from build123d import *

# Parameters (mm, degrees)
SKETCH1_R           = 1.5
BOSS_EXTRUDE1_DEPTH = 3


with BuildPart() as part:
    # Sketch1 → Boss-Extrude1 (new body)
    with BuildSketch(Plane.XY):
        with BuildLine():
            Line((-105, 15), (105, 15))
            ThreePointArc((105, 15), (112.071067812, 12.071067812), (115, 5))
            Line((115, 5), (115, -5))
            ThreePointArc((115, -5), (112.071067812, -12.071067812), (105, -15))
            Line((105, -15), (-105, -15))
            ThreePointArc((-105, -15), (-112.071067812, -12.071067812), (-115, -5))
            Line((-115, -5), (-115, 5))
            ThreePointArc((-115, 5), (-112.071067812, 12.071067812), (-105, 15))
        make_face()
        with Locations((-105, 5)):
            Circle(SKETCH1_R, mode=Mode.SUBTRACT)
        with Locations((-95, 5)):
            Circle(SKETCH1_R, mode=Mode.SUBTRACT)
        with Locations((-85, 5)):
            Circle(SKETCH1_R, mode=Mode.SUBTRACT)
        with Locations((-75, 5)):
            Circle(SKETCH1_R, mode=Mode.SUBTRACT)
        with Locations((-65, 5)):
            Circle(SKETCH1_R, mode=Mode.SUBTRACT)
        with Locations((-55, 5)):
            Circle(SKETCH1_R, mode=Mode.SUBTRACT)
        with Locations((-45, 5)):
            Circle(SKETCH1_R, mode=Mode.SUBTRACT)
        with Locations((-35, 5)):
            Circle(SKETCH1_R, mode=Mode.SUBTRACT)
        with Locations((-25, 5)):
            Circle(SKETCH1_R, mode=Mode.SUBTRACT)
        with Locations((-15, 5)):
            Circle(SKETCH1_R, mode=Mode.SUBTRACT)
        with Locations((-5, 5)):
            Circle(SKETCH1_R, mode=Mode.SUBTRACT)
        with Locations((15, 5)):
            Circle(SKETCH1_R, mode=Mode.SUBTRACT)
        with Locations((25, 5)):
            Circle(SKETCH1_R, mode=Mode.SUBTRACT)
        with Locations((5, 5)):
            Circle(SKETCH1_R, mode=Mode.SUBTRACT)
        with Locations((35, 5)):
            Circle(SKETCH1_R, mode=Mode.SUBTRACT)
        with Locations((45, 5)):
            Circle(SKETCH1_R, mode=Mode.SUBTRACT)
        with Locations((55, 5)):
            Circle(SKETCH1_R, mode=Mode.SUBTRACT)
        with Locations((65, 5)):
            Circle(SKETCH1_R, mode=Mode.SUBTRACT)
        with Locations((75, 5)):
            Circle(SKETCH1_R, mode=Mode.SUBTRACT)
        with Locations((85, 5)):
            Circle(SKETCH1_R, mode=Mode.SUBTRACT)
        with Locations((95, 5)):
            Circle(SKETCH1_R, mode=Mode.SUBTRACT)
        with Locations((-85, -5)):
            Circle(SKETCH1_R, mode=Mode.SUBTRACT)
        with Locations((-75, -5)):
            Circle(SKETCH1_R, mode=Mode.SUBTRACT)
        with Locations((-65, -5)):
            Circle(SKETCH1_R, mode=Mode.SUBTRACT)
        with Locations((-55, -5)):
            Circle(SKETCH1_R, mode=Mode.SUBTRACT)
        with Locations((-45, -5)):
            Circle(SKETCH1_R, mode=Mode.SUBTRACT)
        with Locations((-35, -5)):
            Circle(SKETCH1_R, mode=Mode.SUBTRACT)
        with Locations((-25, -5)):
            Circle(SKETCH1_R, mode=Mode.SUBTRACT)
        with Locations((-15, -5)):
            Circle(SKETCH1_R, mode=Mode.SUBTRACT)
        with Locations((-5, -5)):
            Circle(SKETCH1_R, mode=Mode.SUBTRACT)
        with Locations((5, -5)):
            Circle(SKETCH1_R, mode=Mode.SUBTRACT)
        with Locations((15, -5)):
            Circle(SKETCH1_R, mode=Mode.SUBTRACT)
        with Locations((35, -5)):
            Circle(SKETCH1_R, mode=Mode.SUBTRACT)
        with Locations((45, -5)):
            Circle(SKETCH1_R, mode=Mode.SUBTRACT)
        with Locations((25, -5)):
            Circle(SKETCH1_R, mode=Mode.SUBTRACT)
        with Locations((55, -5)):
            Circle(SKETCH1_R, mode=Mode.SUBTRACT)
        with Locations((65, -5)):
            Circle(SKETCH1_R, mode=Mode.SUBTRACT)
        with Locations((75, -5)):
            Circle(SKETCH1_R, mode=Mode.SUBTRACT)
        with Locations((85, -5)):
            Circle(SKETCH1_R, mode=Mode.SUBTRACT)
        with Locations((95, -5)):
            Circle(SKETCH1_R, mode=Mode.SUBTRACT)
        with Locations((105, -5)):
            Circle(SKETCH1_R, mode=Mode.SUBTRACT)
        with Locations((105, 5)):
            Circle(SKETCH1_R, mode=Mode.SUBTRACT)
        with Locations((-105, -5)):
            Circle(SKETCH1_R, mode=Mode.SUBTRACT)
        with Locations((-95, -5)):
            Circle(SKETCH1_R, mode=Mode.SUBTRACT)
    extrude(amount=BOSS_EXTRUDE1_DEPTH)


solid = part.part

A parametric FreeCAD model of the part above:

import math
import FreeCAD as App
import Part
import Sketcher
from FreeCAD import Vector
Q = App.Units.Quantity

doc = App.newDocument("Part")
body = doc.addObject("PartDesign::Body", "Body")

# Sketch on XY plane
sketch1 = doc.addObject("Sketcher::SketchObject", "Sketch")
body.addObject(sketch1)
sketch1.AttachmentSupport = (doc.XY_Plane, [""])
sketch1.MapMode = "FlatFace"
sketch1.addGeometry([
    Part.LineSegment(Vector(105, 15, 0), Vector(-105, 15, 0)),  # 0
    Part.ArcOfCircle(Part.Circle(Vector(-105, 5, 0), Vector(0, 0, 1), 10), math.radians(90), math.radians(180)),  # 1
    Part.LineSegment(Vector(-115, 5, 0), Vector(-115, -5, 0)),  # 2
    Part.ArcOfCircle(Part.Circle(Vector(-105, -5, 0), Vector(0, 0, 1), 10), math.radians(180), math.radians(270)),  # 3
    Part.LineSegment(Vector(-105, -15, 0), Vector(105, -15, 0)),  # 4
    Part.ArcOfCircle(Part.Circle(Vector(105, -5, 0), Vector(0, 0, 1), 10), math.radians(-90), math.radians(0)),  # 5
    Part.LineSegment(Vector(115, -5, 0), Vector(115, 5, 0)),  # 6
    Part.ArcOfCircle(Part.Circle(Vector(105, 5, 0), Vector(0, 0, 1), 10), math.radians(0), math.radians(90)),  # 7
    Part.Circle(Vector(105, -5, 0), Vector(0, 0, 1), 1.5),  # 8
    Part.Circle(Vector(95, -5, 0), Vector(0, 0, 1), 1.5),  # 9
    Part.Circle(Vector(85, -5, 0), Vector(0, 0, 1), 1.5),  # 10
    Part.Circle(Vector(75, -5, 0), Vector(0, 0, 1), 1.5),  # 11
    Part.Circle(Vector(65, -5, 0), Vector(0, 0, 1), 1.5),  # 12
    Part.Circle(Vector(55, -5, 0), Vector(0, 0, 1), 1.5),  # 13
    Part.Circle(Vector(45, -5, 0), Vector(0, 0, 1), 1.5),  # 14
    Part.Circle(Vector(35, -5, 0), Vector(0, 0, 1), 1.5),  # 15
    Part.Circle(Vector(25, -5, 0), Vector(0, 0, 1), 1.5),  # 16
    Part.Circle(Vector(15, -5, 0), Vector(0, 0, 1), 1.5),  # 17
    Part.Circle(Vector(5, -5, 0), Vector(0, 0, 1), 1.5),  # 18
    Part.Circle(Vector(-5, -5, 0), Vector(0, 0, 1), 1.5),  # 19
    Part.Circle(Vector(-15, -5, 0), Vector(0, 0, 1), 1.5),  # 20
    Part.Circle(Vector(-25, -5, 0), Vector(0, 0, 1), 1.5),  # 21
    Part.Circle(Vector(-35, -5, 0), Vector(0, 0, 1), 1.5),  # 22
    Part.Circle(Vector(-45, -5, 0), Vector(0, 0, 1), 1.5),  # 23
    Part.Circle(Vector(-55, -5, 0), Vector(0, 0, 1), 1.5),  # 24
    Part.Circle(Vector(-65, -5, 0), Vector(0, 0, 1), 1.5),  # 25
    Part.Circle(Vector(-75, -5, 0), Vector(0, 0, 1), 1.5),  # 26
    Part.Circle(Vector(-85, -5, 0), Vector(0, 0, 1), 1.5),  # 27
    Part.Circle(Vector(-95, -5, 0), Vector(0, 0, 1), 1.5),  # 28
    Part.Circle(Vector(-105, -5, 0), Vector(0, 0, 1), 1.5),  # 29
    Part.Circle(Vector(105, 5, 0), Vector(0, 0, 1), 1.5),  # 30
    Part.Circle(Vector(95, 5, 0), Vector(0, 0, 1), 1.5),  # 31
    Part.Circle(Vector(85, 5, 0), Vector(0, 0, 1), 1.5),  # 32
    Part.Circle(Vector(75, 5, 0), Vector(0, 0, 1), 1.5),  # 33
    Part.Circle(Vector(65, 5, 0), Vector(0, 0, 1), 1.5),  # 34
    Part.Circle(Vector(55, 5, 0), Vector(0, 0, 1), 1.5),  # 35
    Part.Circle(Vector(45, 5, 0), Vector(0, 0, 1), 1.5),  # 36
    Part.Circle(Vector(35, 5, 0), Vector(0, 0, 1), 1.5),  # 37
    Part.Circle(Vector(25, 5, 0), Vector(0, 0, 1), 1.5),  # 38
    Part.Circle(Vector(15, 5, 0), Vector(0, 0, 1), 1.5),  # 39
    Part.Circle(Vector(5, 5, 0), Vector(0, 0, 1), 1.5),  # 40
    Part.Circle(Vector(-5, 5, 0), Vector(0, 0, 1), 1.5),  # 41
    Part.Circle(Vector(-15, 5, 0), Vector(0, 0, 1), 1.5),  # 42
    Part.Circle(Vector(-25, 5, 0), Vector(0, 0, 1), 1.5),  # 43
    Part.Circle(Vector(-35, 5, 0), Vector(0, 0, 1), 1.5),  # 44
    Part.Circle(Vector(-45, 5, 0), Vector(0, 0, 1), 1.5),  # 45
    Part.Circle(Vector(-55, 5, 0), Vector(0, 0, 1), 1.5),  # 46
    Part.Circle(Vector(-65, 5, 0), Vector(0, 0, 1), 1.5),  # 47
    Part.Circle(Vector(-75, 5, 0), Vector(0, 0, 1), 1.5),  # 48
    Part.Circle(Vector(-85, 5, 0), Vector(0, 0, 1), 1.5),  # 49
    Part.Circle(Vector(-95, 5, 0), Vector(0, 0, 1), 1.5),  # 50
    Part.Circle(Vector(-105, 5, 0), Vector(0, 0, 1), 1.5),  # 51
], False)
sketch1.addConstraint([
    Sketcher.Constraint("Tangent", 0, 2, 1, 1),
    Sketcher.Constraint("Tangent", 1, 2, 2, 1),
    Sketcher.Constraint("Tangent", 2, 2, 3, 1),
    Sketcher.Constraint("Tangent", 3, 2, 4, 1),
    Sketcher.Constraint("Tangent", 4, 2, 5, 1),
    Sketcher.Constraint("Tangent", 5, 2, 6, 1),
    Sketcher.Constraint("Tangent", 6, 2, 7, 1),
    Sketcher.Constraint("Tangent", 7, 2, 0, 1),
    Sketcher.Constraint("Horizontal", 0),
    Sketcher.Constraint("Vertical", 2),
    Sketcher.Constraint("Horizontal", 4),
    Sketcher.Constraint("Vertical", 6),
    Sketcher.Constraint("Coincident", 8, 3, 5, 3),
    Sketcher.Constraint("Coincident", 29, 3, 3, 3),
    Sketcher.Constraint("Coincident", 30, 3, 7, 3),
    Sketcher.Constraint("Coincident", 51, 3, 1, 3),
    Sketcher.Constraint("Equal", 1, 3),
    Sketcher.Constraint("Equal", 3, 5),
    Sketcher.Constraint("Equal", 5, 7),
    Sketcher.Constraint("Equal", 8, 9),
    Sketcher.Constraint("Equal", 9, 10),
    Sketcher.Constraint("Equal", 10, 11),
    Sketcher.Constraint("Equal", 11, 12),
    Sketcher.Constraint("Equal", 12, 13),
    Sketcher.Constraint("Equal", 13, 14),
    Sketcher.Constraint("Equal", 14, 15),
    Sketcher.Constraint("Equal", 15, 16),
    Sketcher.Constraint("Equal", 16, 17),
    Sketcher.Constraint("Equal", 17, 18),
    Sketcher.Constraint("Equal", 18, 19),
    Sketcher.Constraint("Equal", 19, 20),
    Sketcher.Constraint("Equal", 20, 21),
    Sketcher.Constraint("Equal", 21, 22),
    Sketcher.Constraint("Equal", 22, 23),
    Sketcher.Constraint("Equal", 23, 24),
    Sketcher.Constraint("Equal", 24, 25),
    Sketcher.Constraint("Equal", 25, 26),
    Sketcher.Constraint("Equal", 26, 27),
    Sketcher.Constraint("Equal", 27, 28),
    Sketcher.Constraint("Equal", 28, 29),
    Sketcher.Constraint("Equal", 29, 30),
    Sketcher.Constraint("Equal", 30, 31),
    Sketcher.Constraint("Equal", 31, 32),
    Sketcher.Constraint("Equal", 32, 33),
    Sketcher.Constraint("Equal", 33, 34),
    Sketcher.Constraint("Equal", 34, 35),
    Sketcher.Constraint("Equal", 35, 36),
    Sketcher.Constraint("Equal", 36, 37),
    Sketcher.Constraint("Equal", 37, 38),
    Sketcher.Constraint("Equal", 38, 39),
    Sketcher.Constraint("Equal", 39, 40),
    Sketcher.Constraint("Equal", 40, 41),
    Sketcher.Constraint("Equal", 41, 42),
    Sketcher.Constraint("Equal", 42, 43),
    Sketcher.Constraint("Equal", 43, 44),
    Sketcher.Constraint("Equal", 44, 45),
    Sketcher.Constraint("Equal", 45, 46),
    Sketcher.Constraint("Equal", 46, 47),
    Sketcher.Constraint("Equal", 47, 48),
    Sketcher.Constraint("Equal", 48, 49),
    Sketcher.Constraint("Equal", 49, 50),
    Sketcher.Constraint("Equal", 50, 51),
    Sketcher.Constraint("Symmetric", 1, 3, 5, 3, -1, 1),
    Sketcher.Constraint("Symmetric", 28, 3, 31, 3, -1, 1),
    Sketcher.Constraint("Symmetric", 27, 3, 32, 3, -1, 1),
    Sketcher.Constraint("Symmetric", 26, 3, 33, 3, -1, 1),
    Sketcher.Constraint("Symmetric", 25, 3, 34, 3, -1, 1),
    Sketcher.Constraint("Symmetric", 24, 3, 35, 3, -1, 1),
    Sketcher.Constraint("Symmetric", 23, 3, 36, 3, -1, 1),
    Sketcher.Constraint("Symmetric", 22, 3, 37, 3, -1, 1),
    Sketcher.Constraint("Symmetric", 21, 3, 38, 3, -1, 1),
    Sketcher.Constraint("Symmetric", 20, 3, 39, 3, -1, 1),
    Sketcher.Constraint("Symmetric", 19, 3, 40, 3, -1, 1),
    Sketcher.Constraint("Symmetric", 18, 3, 41, 3, -1, 1),
    Sketcher.Constraint("Symmetric", 17, 3, 42, 3, -1, 1),
    Sketcher.Constraint("Symmetric", 16, 3, 43, 3, -1, 1),
    Sketcher.Constraint("Symmetric", 15, 3, 44, 3, -1, 1),
    Sketcher.Constraint("Symmetric", 14, 3, 45, 3, -1, 1),
    Sketcher.Constraint("Symmetric", 13, 3, 46, 3, -1, 1),
    Sketcher.Constraint("Symmetric", 12, 3, 47, 3, -1, 1),
    Sketcher.Constraint("Symmetric", 11, 3, 48, 3, -1, 1),
    Sketcher.Constraint("Symmetric", 10, 3, 49, 3, -1, 1),
    Sketcher.Constraint("Symmetric", 9, 3, 50, 3, -1, 1),
    Sketcher.Constraint("Symmetric", 18, 3, 19, 3, -2),
    Sketcher.Constraint("Symmetric", 17, 3, 20, 3, -2),
    Sketcher.Constraint("Symmetric", 16, 3, 21, 3, -2),
    Sketcher.Constraint("Symmetric", 15, 3, 22, 3, -2),
    Sketcher.Constraint("Symmetric", 14, 3, 23, 3, -2),
    Sketcher.Constraint("Symmetric", 13, 3, 24, 3, -2),
    Sketcher.Constraint("Symmetric", 12, 3, 25, 3, -2),
    Sketcher.Constraint("Symmetric", 11, 3, 26, 3, -2),
    Sketcher.Constraint("Symmetric", 10, 3, 27, 3, -2),
    Sketcher.Constraint("Symmetric", 9, 3, 28, 3, -2),
    Sketcher.Constraint("Horizontal", 8, 3, 9, 3),
    Sketcher.Constraint("Horizontal", 9, 3, 10, 3),
    Sketcher.Constraint("Horizontal", 10, 3, 11, 3),
    Sketcher.Constraint("Horizontal", 11, 3, 12, 3),
    Sketcher.Constraint("Horizontal", 12, 3, 13, 3),
    Sketcher.Constraint("Horizontal", 13, 3, 14, 3),
    Sketcher.Constraint("Horizontal", 14, 3, 15, 3),
    Sketcher.Constraint("Horizontal", 15, 3, 16, 3),
    Sketcher.Constraint("Horizontal", 16, 3, 17, 3),
    Sketcher.Constraint("Horizontal", 17, 3, 18, 3),
    Sketcher.Constraint("Diameter", 8, Q("3 mm")),
    Sketcher.Constraint("Radius", 1, Q("10 mm")),
    Sketcher.Constraint("DistanceX", 0, 2, 0, 1, Q("210 mm")),
    Sketcher.Constraint("DistanceY", 2, 2, 2, 1, Q("10 mm")),
    Sketcher.Constraint("DistanceX", -1, 1, 9, 3, Q("95 mm")),
    Sketcher.Constraint("DistanceX", -1, 1, 10, 3, Q("85 mm")),
    Sketcher.Constraint("DistanceX", -1, 1, 11, 3, Q("75 mm")),
    Sketcher.Constraint("DistanceX", -1, 1, 12, 3, Q("65 mm")),
    Sketcher.Constraint("DistanceX", -1, 1, 13, 3, Q("55 mm")),
    Sketcher.Constraint("DistanceX", -1, 1, 14, 3, Q("45 mm")),
    Sketcher.Constraint("DistanceX", -1, 1, 15, 3, Q("35 mm")),
    Sketcher.Constraint("DistanceX", -1, 1, 16, 3, Q("25 mm")),
    Sketcher.Constraint("DistanceX", -1, 1, 17, 3, Q("15 mm")),
    Sketcher.Constraint("DistanceX", -1, 1, 18, 3, Q("5 mm")),
])
pad1 = doc.addObject("PartDesign::Pad", "Pad")
body.addObject(pad1)
pad1.Profile = sketch1
pad1.Length = 3

doc.recompute()
